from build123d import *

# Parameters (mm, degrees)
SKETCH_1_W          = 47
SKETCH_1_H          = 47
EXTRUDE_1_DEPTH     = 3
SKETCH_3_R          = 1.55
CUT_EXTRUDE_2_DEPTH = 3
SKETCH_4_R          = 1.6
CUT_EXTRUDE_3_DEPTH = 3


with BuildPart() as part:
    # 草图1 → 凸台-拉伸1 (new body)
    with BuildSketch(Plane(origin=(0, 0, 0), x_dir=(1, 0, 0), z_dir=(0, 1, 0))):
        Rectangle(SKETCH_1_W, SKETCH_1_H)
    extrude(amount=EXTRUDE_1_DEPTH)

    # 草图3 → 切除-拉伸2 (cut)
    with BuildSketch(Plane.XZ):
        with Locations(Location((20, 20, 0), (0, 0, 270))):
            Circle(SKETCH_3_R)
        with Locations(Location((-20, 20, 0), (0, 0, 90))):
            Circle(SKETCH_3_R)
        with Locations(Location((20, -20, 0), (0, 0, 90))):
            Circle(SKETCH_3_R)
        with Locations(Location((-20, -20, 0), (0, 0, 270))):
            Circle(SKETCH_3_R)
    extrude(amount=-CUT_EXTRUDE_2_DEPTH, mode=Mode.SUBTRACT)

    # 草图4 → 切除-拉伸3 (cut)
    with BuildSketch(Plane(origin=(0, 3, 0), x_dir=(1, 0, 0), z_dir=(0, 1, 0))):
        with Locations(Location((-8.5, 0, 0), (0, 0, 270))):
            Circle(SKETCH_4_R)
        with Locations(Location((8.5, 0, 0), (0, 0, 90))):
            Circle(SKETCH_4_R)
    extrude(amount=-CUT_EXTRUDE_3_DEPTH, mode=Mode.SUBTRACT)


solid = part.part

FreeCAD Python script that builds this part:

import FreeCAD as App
import Part
import Sketcher
from FreeCAD import Vector

doc = App.newDocument("Part")
params = doc.addObject("Spreadsheet::Sheet", "Params")
for row, (alias, value) in enumerate([
    ("sketch1_width", "47 mm"),
    ("pad1_length", "3 mm"),
    ("sketch2_diameter", "3.1 mm"),
    ("pocket1_length", "3 mm"),
    ("sketch3_diameter", "3.2 mm"),
    ("pocket2_length", "3 mm"),
], start=1):
    params.set(f"A{row}", alias)
    params.set(f"B{row}", "=" + value)
    params.setAlias(f"B{row}", alias)

body = doc.addObject("PartDesign::Body", "Body")

# Sketch on XZ plane
sketch1 = doc.addObject("Sketcher::SketchObject", "Sketch")
body.addObject(sketch1)
sketch1.AttachmentSupport = (doc.XZ_Plane, [""])
sketch1.MapMode = "FlatFace"
sketch1.addGeometry([
    Part.LineSegment(Vector(-24, -24, 0), Vector(-24, 24, 0)),
    Part.LineSegment(Vector(-24, 24, 0), Vector(24, 24, 0)),
    Part.LineSegment(Vector(24, 24, 0), Vector(24, -24, 0)),
    Part.LineSegment(Vector(24, -24, 0), Vector(-24, -24, 0)),
], False)
sketch1.addConstraint([
    Sketcher.Constraint("Coincident", 0, 2, 1, 1),
    Sketcher.Constraint("Coincident", 1, 2, 2, 1),
    Sketcher.Constraint("Coincident", 2, 2, 3, 1),
    Sketcher.Constraint("Coincident", 3, 2, 0, 1),
    Sketcher.Constraint("Vertical", 0),
    Sketcher.Constraint("Horizontal", 1),
    Sketcher.Constraint("Vertical", 2),
    Sketcher.Constraint("Horizontal", 3),
    Sketcher.Constraint("Symmetric", 0, 2, 2, 2, -1, 1),
    Sketcher.Constraint("Equal", 3, 0),
    Sketcher.Constraint("DistanceX", 1, 1, 1, 2, 47.0),
])
sketch1.setExpression("Constraints[10]", "Params.sketch1_width")
pad1 = doc.addObject("PartDesign::Pad", "Pad")
body.addObject(pad1)
pad1.Profile = sketch1
pad1.setExpression("Length", "Params.pad1_length")
pad1.Reversed = True

# Sketch on XZ plane
sketch2 = doc.addObject("Sketcher::SketchObject", "Sketch001")
body.addObject(sketch2)
sketch2.AttachmentSupport = (doc.XZ_Plane, [""])
sketch2.MapMode = "FlatFace"
sketch2.addGeometry([
    Part.Circle(Vector(20, 20, 0), Vector(0, 0, 1), 1.6),
    Part.Circle(Vector(-20, 20, 0), Vector(0, 0, 1), 1.6),
    Part.Circle(Vector(20, -20, 0), Vector(0, 0, 1), 1.6),
    Part.Circle(Vector(-20, -20, 0), Vector(0, 0, 1), 1.6),
], False)
sketch2.addConstraint([
    Sketcher.Constraint("Equal", 0, 1),
    Sketcher.Constraint("Equal", 1, 2),
    Sketcher.Constraint("Equal", 2, 3),
    Sketcher.Constraint("Symmetric", 1, 3, 2, 3, -1, 1),
    Sketcher.Constraint("Symmetric", 0, 3, 3, 3, -1, 1),
    Sketcher.Constraint("Symmetric", 0, 3, 1, 3, -2),
    Sketcher.Constraint("Diameter", 0, 3.1),
    Sketcher.Constraint("DistanceX", -1, 1, 0, 3, 20.0),
    Sketcher.Constraint("DistanceY", -1, 1, 0, 3, 20.0),
])
sketch2.setExpression("Constraints[6]", "Params.sketch2_diameter")
pocket1 = doc.addObject("PartDesign::Pocket", "Pocket")
body.addObject(pocket1)
pocket1.Profile = sketch2
pocket1.setExpression("Length", "Params.pocket1_length")

# Sketch on XZ plane
sketch3 = doc.addObject("Sketcher::SketchObject", "Sketch002")
body.addObject(sketch3)
sketch3.AttachmentSupport = (doc.XZ_Plane, [""])
sketch3.MapMode = "FlatFace"
sketch3.AttachmentOffset = App.Placement(Vector(0, 0, -3), App.Rotation())
sketch3.addGeometry([
    Part.Circle(Vector(-8.5, 0, 0), Vector(0, 0, 1), 1.6),
    Part.Circle(Vector(8.5, 0, 0), Vector(0, 0, 1), 1.6),
], False)
sketch3.addConstraint([
    Sketcher.Constraint("Equal", 0, 1),
    Sketcher.Constraint("Symmetric", 0, 3, 1, 3, -1, 1),
    Sketcher.Constraint("PointOnObject", 0, 3, -1),
    Sketcher.Constraint("Diameter", 0, 3.2),
    Sketcher.Constraint("DistanceX", 0, 3, 1, 3, 17.0),
])
sketch3.setExpression("Constraints[3]", "Params.sketch3_diameter")
pocket2 = doc.addObject("PartDesign::Pocket", "Pocket001")
body.addObject(pocket2)
pocket2.Profile = sketch3
pocket2.setExpression("Length", "Params.pocket2_length")
pocket2.Reversed = True

doc.recompute()
